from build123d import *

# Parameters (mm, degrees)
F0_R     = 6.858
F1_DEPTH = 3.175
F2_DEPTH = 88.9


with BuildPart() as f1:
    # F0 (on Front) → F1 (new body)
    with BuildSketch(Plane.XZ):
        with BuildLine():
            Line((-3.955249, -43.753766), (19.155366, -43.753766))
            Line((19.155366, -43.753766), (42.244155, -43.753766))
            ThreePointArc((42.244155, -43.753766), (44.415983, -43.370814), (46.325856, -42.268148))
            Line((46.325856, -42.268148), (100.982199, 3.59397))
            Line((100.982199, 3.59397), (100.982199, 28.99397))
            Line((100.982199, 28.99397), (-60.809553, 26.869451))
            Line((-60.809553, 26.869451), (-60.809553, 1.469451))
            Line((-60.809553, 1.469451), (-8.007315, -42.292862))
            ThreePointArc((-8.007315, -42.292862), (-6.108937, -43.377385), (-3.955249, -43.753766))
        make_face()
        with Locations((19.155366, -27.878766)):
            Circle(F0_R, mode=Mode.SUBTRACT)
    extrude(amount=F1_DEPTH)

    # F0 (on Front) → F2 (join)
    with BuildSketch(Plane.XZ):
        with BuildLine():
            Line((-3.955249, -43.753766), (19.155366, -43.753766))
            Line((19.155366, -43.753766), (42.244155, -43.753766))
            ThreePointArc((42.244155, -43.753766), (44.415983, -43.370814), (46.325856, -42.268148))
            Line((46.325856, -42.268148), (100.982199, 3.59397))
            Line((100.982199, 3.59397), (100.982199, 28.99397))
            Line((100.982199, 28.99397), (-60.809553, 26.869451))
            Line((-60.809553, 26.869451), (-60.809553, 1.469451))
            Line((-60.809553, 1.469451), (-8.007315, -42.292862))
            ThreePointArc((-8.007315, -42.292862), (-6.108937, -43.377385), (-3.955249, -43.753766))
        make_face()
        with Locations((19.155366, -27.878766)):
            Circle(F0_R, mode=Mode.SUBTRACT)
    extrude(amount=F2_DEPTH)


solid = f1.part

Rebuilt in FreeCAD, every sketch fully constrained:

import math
import FreeCAD as App
import Part
import Sketcher
from FreeCAD import Vector
Q = App.Units.Quantity

doc = App.newDocument("Part")
body = doc.addObject("PartDesign::Body", "Body")

# Sketch on XZ plane
sketch1 = doc.addObject("Sketcher::SketchObject", "Sketch")
body.addObject(sketch1)
sketch1.AttachmentSupport = (doc.XZ_Plane, [""])
sketch1.MapMode = "FlatFace"
sketch1.addGeometry([
    Part.LineSegment(Vector(-4, -43.8, 0), Vector(42.2, -43.8, 0)),  # 0
    Part.ArcOfCircle(Part.Circle(Vector(42.2, -37.4, 0), Vector(0, 0, 1), 6.3), math.radians(-90), math.radians(-50)),  # 1
    Part.LineSegment(Vector(46.3, -42.3, 0), Vector(101, 3.6, 0)),  # 2
    Part.LineSegment(Vector(101, 3.6, 0), Vector(101, 29, 0)),  # 3
    Part.LineSegment(Vector(101, 29, 0), Vector(-60.8, 26.9, 0)),  # 4
    Part.LineSegment(Vector(-60.8, 26.9, 0), Vector(-60.8, 1.5, 0)),  # 5
    Part.LineSegment(Vector(-60.8, 1.5, 0), Vector(-8, -42.3, 0)),  # 6
    Part.ArcOfCircle(Part.Circle(Vector(-4, -37.4, 0), Vector(0, 0, 1), 6.4), math.radians(-130), math.radians(-90)),  # 7
    Part.Circle(Vector(19.2, -27.9, 0), Vector(0, 0, 1), 6.9),  # 8
], False)
sketch1.addConstraint([
    Sketcher.Constraint("Tangent", 0, 2, 1, 1),
    Sketcher.Constraint("Tangent", 1, 2, 2, 1),
    Sketcher.Constraint("Coincident", 2, 2, 3, 1),
    Sketcher.Constraint("Coincident", 3, 2, 4, 1),
    Sketcher.Constraint("Coincident", 4, 2, 5, 1),
    Sketcher.Constraint("Coincident", 5, 2, 6, 1),
    Sketcher.Constraint("Tangent", 6, 2, 7, 1),
    Sketcher.Constraint("Tangent", 7, 2, 0, 1),
    Sketcher.Constraint("Horizontal", 0),
    Sketcher.Constraint("Vertical", 3),
    Sketcher.Constraint("Vertical", 5),
    Sketcher.Constraint("Equal", 3, 5),
    Sketcher.Constraint("Diameter", 8, Q("0.54 in")),
    Sketcher.Constraint("DistanceY", 3, 1, 3, 2, Q("1 in")),
    Sketcher.Constraint("Radius", 1, Q("0.2499999 in")),
    Sketcher.Constraint("Radius", 7, Q("0.2500002 in")),
    Sketcher.Constraint("Angle", 2, Q("40 deg")),
    Sketcher.Constraint("Distance", 6, Q("2.7 in")),
    Sketcher.Constraint("DistanceY", 1, 3, 8, 3, Q("0.3750001 in")),
    Sketcher.Constraint("Distance", 4, Q("161.8057 mm")),
    Sketcher.Constraint("DistanceX", -1, 1, 2, 2, Q("100.982199 mm")),
    Sketcher.Constraint("DistanceY", 1, 2, 4, 2, Q("69.137599 mm")),
    Sketcher.Constraint("Distance", 2, Q("71.348789 mm")),
    Sketcher.Constraint("DistanceY", 7, 3, -1, 1, Q("37.403762 mm")),
    Sketcher.Constraint("DistanceX", 8, 3, 1, 3, Q("23.088789 mm")),
])
pad1 = doc.addObject("PartDesign::Pad", "Pad")
body.addObject(pad1)
pad1.Profile = sketch1
pad1.Length = Q("0.125 in")

# Sketch on XZ plane
sketch2 = doc.addObject("Sketcher::SketchObject", "Sketch001")
body.addObject(sketch2)
sketch2.AttachmentSupport = (doc.XZ_Plane, [""])
sketch2.MapMode = "FlatFace"
sketch2.addGeometry([
    Part.LineSegment(Vector(-4, -43.8, 0), Vector(42.2, -43.8, 0)),  # 0
    Part.ArcOfCircle(Part.Circle(Vector(42.2, -37.4, 0), Vector(0, 0, 1), 6.3), math.radians(-90), math.radians(-50)),  # 1
    Part.LineSegment(Vector(46.3, -42.3, 0), Vector(101, 3.6, 0)),  # 2
    Part.LineSegment(Vector(101, 3.6, 0), Vector(101, 29, 0)),  # 3
    Part.LineSegment(Vector(101, 29, 0), Vector(-60.8, 26.9, 0)),  # 4
    Part.LineSegment(Vector(-60.8, 26.9, 0), Vector(-60.8, 1.5, 0)),  # 5
    Part.LineSegment(Vector(-60.8, 1.5, 0), Vector(-8, -42.3, 0)),  # 6
    Part.ArcOfCircle(Part.Circle(Vector(-4, -37.4, 0), Vector(0, 0, 1), 6.4), math.radians(-130), math.radians(-90)),  # 7
    Part.Circle(Vector(19.2, -27.9, 0), Vector(0, 0, 1), 6.9),  # 8
], False)
sketch2.addConstraint([
    Sketcher.Constraint("Tangent", 0, 2, 1, 1),
    Sketcher.Constraint("Tangent", 1, 2, 2, 1),
    Sketcher.Constraint("Coincident", 2, 2, 3, 1),
    Sketcher.Constraint("Coincident", 3, 2, 4, 1),
    Sketcher.Constraint("Coincident", 4, 2, 5, 1),
    Sketcher.Constraint("Coincident", 5, 2, 6, 1),
    Sketcher.Constraint("Tangent", 6, 2, 7, 1),
    Sketcher.Constraint("Tangent", 7, 2, 0, 1),
    Sketcher.Constraint("Horizontal", 0),
    Sketcher.Constraint("Vertical", 3),
    Sketcher.Constraint("Vertical", 5),
    Sketcher.Constraint("Equal", 3, 5),
    Sketcher.Constraint("Diameter", 8, Q("0.54 in")),
    Sketcher.Constraint("DistanceY", 3, 1, 3, 2, Q("1 in")),
    Sketcher.Constraint("Radius", 1, Q("0.2499999 in")),
    Sketcher.Constraint("Radius", 7, Q("0.2500002 in")),
    Sketcher.Constraint("Angle", 2, Q("40 deg")),
    Sketcher.Constraint("Distance", 6, Q("2.7 in")),
    Sketcher.Constraint("DistanceY", 1, 3, 8, 3, Q("0.3750001 in")),
    Sketcher.Constraint("Distance", 4, Q("161.8057 mm")),
    Sketcher.Constraint("DistanceX", -1, 1, 2, 2, Q("100.982199 mm")),
    Sketcher.Constraint("DistanceY", 1, 2, 4, 2, Q("69.137599 mm")),
    Sketcher.Constraint("Distance", 2, Q("71.348789 mm")),
    Sketcher.Constraint("DistanceY", 7, 3, -1, 1, Q("37.403762 mm")),
    Sketcher.Constraint("DistanceX", 8, 3, 1, 3, Q("23.088789 mm")),
])
pad2 = doc.addObject("PartDesign::Pad", "Pad001")
body.addObject(pad2)
pad2.Profile = sketch2
pad2.Length = Q("3.5 in")

doc.recompute()
